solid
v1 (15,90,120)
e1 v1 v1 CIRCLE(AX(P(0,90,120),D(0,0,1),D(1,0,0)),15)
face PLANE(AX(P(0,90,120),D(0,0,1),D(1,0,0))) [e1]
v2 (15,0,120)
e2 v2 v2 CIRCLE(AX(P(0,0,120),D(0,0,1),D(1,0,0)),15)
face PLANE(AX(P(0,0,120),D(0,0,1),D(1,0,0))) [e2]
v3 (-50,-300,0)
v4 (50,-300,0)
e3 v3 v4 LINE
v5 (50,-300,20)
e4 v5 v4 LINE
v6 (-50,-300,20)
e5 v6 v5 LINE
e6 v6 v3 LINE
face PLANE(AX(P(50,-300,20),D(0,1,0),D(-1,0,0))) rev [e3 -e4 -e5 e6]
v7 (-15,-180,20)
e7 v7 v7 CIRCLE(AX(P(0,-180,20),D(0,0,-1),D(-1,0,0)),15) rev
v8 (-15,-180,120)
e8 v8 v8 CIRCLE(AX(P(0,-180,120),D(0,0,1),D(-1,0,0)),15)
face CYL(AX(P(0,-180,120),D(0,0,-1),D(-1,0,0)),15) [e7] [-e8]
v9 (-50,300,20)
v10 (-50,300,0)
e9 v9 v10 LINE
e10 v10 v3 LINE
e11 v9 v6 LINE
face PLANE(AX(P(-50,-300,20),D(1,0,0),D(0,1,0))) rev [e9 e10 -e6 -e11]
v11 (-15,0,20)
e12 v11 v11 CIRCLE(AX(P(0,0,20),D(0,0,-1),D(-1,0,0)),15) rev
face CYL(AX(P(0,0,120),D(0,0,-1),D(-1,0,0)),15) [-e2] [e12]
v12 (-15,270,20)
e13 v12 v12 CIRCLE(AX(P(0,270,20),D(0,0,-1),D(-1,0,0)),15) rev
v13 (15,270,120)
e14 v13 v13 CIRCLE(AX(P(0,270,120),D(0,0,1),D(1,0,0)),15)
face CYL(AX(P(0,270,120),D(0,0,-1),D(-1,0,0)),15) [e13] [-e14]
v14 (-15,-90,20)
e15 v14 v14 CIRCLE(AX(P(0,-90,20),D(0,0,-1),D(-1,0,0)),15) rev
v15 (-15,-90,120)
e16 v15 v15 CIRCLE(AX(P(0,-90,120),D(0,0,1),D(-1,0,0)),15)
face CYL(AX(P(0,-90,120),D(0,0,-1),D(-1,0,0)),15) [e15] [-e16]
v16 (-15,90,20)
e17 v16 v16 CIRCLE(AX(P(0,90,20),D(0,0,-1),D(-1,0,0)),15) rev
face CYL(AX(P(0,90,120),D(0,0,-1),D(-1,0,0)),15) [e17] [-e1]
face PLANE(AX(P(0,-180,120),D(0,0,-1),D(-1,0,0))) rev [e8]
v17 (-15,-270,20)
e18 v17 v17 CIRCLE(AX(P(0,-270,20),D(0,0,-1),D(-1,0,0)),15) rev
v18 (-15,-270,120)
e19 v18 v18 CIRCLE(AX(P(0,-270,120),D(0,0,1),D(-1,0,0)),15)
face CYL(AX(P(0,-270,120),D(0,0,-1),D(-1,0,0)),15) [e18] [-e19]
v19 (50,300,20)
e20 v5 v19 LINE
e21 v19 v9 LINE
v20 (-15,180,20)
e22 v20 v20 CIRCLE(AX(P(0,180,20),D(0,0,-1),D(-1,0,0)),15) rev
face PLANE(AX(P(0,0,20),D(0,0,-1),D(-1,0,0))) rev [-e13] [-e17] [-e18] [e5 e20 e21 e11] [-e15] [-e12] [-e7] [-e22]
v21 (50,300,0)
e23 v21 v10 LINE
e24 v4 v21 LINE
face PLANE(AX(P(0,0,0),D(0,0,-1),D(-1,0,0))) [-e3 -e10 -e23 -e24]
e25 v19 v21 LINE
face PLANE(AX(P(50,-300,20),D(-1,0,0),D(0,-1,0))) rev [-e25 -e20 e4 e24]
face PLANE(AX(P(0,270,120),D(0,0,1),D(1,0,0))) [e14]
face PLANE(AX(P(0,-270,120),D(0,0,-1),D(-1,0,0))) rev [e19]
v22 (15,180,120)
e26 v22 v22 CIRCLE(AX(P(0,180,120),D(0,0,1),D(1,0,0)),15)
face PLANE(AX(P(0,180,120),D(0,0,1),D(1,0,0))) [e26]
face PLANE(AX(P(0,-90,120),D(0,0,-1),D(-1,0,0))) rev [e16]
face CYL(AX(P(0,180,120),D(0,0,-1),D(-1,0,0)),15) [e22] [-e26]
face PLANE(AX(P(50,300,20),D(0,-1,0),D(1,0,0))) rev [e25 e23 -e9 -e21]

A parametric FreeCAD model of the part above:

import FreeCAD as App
import Part
import Sketcher

V = App.Vector
Q = App.Units.Quantity


def add_polygon(sketch, points):
    """Adds a closed chain of lines whose ends are joined by coincident constraints."""
    first, n = sketch.GeometryCount, len(points)
    for a, b in zip(points, points[1:] + points[:1]):
        sketch.addGeometry(Part.LineSegment(App.Vector(*a, 0), App.Vector(*b, 0)), False)
    for i in range(n):
        sketch.addConstraint(Sketcher.Constraint("Coincident", first + i, 2, first + (i + 1) % n, 1))

doc = App.newDocument("Part")
params = doc.addObject("Spreadsheet::Sheet", "Params")
for row, (alias, value) in enumerate([
    ("sketch1_width", "100 mm"),
    ("sketch1_height", "600 mm"),
    ("pad1_length", "20 mm"),
    ("sketch2_diameter", "30 mm"),
    ("pad2_length", "100 mm"),
], start=1):
    params.set(f"A{row}", alias)
    params.set(f"B{row}", "=" + value)
    params.setAlias(f"B{row}", alias)

body = doc.addObject("PartDesign::Body", "Body")

sketch1 = body.newObject("Sketcher::SketchObject", "Sketch")
sketch1.AttachmentSupport = (doc.getObject("XY_Plane"), [""])
sketch1.MapMode = "FlatFace"
add_polygon(sketch1, [(-50, 300), (-50, -300), (50, -300), (50, 300)])
sketch1.addConstraint([
    Sketcher.Constraint("Vertical", 0),
    Sketcher.Constraint("Horizontal", 1),
    Sketcher.Constraint("Vertical", 2),
    Sketcher.Constraint("Horizontal", 3),
    Sketcher.Constraint("Symmetric", 0, 2, 2, 2, -1, 1),
    Sketcher.Constraint("DistanceX", 1, 1, 1, 2, Q("100 mm")),
    Sketcher.Constraint("DistanceY", 0, 2, 0, 1, Q("600 mm")),
])
sketch1.setExpression("Constraints[9]", "Params.sketch1_width")
sketch1.setExpression("Constraints[10]", "Params.sketch1_height")
pad1 = body.newObject("PartDesign::Pad", "Pad")
pad1.Profile = sketch1
pad1.setExpression("Length", "Params.pad1_length")

sketch2 = body.newObject("Sketcher::SketchObject", "Sketch001")
sketch2.AttachmentSupport = (doc.getObject("XY_Plane"), [""])
sketch2.MapMode = "FlatFace"
sketch2.AttachmentOffset = App.Placement(V(0, 0, 20), App.Rotation())
sketch2.addGeometry([
    Part.Circle(V(0, 0, 0), V(0, 0, 1), 15),
    Part.Circle(V(0, 90, 0), V(0, 0, 1), 15),
    Part.Circle(V(0, 180, 0), V(0, 0, 1), 15),
    Part.Circle(V(0, 270, 0), V(0, 0, 1), 15),
    Part.Circle(V(0, -90, 0), V(0, 0, 1), 15),
    Part.Circle(V(0, -180, 0), V(0, 0, 1), 15),
    Part.Circle(V(0, -270, 0), V(0, 0, 1), 15),
], False)
sketch2.addConstraint([
    Sketcher.Constraint("Coincident", 0, 3, -1, 1),
    Sketcher.Constraint("Equal", 0, 1),
    Sketcher.Constraint("Equal", 1, 2),
    Sketcher.Constraint("Equal", 2, 3),
    Sketcher.Constraint("Equal", 3, 4),
    Sketcher.Constraint("Equal", 4, 5),
    Sketcher.Constraint("Equal", 5, 6),
    Sketcher.Constraint("Symmetric", 1, 3, 4, 3, -1, 1),
    Sketcher.Constraint("Symmetric", 2, 3, 5, 3, -1, 1),
    Sketcher.Constraint("Symmetric", 3, 3, 6, 3, -1, 1),
    Sketcher.Constraint("PointOnObject", 1, 3, -2),
    Sketcher.Constraint("PointOnObject", 2, 3, -2),
    Sketcher.Constraint("PointOnObject", 3, 3, -2),
    Sketcher.Constraint("Diameter", 0, Q("30 mm")),
    Sketcher.Constraint("DistanceY", -1, 1, 1, 3, Q("90 mm")),
    Sketcher.Constraint("DistanceY", -1, 1, 2, 3, Q("180 mm")),
    Sketcher.Constraint("DistanceY", -1, 1, 3, 3, Q("270 mm")),
])
sketch2.setExpression("Constraints[13]", "Params.sketch2_diameter")
pad2 = body.newObject("PartDesign::Pad", "Pad001")
pad2.Profile = sketch2
pad2.setExpression("Length", "Params.pad2_length")

doc.recompute()
